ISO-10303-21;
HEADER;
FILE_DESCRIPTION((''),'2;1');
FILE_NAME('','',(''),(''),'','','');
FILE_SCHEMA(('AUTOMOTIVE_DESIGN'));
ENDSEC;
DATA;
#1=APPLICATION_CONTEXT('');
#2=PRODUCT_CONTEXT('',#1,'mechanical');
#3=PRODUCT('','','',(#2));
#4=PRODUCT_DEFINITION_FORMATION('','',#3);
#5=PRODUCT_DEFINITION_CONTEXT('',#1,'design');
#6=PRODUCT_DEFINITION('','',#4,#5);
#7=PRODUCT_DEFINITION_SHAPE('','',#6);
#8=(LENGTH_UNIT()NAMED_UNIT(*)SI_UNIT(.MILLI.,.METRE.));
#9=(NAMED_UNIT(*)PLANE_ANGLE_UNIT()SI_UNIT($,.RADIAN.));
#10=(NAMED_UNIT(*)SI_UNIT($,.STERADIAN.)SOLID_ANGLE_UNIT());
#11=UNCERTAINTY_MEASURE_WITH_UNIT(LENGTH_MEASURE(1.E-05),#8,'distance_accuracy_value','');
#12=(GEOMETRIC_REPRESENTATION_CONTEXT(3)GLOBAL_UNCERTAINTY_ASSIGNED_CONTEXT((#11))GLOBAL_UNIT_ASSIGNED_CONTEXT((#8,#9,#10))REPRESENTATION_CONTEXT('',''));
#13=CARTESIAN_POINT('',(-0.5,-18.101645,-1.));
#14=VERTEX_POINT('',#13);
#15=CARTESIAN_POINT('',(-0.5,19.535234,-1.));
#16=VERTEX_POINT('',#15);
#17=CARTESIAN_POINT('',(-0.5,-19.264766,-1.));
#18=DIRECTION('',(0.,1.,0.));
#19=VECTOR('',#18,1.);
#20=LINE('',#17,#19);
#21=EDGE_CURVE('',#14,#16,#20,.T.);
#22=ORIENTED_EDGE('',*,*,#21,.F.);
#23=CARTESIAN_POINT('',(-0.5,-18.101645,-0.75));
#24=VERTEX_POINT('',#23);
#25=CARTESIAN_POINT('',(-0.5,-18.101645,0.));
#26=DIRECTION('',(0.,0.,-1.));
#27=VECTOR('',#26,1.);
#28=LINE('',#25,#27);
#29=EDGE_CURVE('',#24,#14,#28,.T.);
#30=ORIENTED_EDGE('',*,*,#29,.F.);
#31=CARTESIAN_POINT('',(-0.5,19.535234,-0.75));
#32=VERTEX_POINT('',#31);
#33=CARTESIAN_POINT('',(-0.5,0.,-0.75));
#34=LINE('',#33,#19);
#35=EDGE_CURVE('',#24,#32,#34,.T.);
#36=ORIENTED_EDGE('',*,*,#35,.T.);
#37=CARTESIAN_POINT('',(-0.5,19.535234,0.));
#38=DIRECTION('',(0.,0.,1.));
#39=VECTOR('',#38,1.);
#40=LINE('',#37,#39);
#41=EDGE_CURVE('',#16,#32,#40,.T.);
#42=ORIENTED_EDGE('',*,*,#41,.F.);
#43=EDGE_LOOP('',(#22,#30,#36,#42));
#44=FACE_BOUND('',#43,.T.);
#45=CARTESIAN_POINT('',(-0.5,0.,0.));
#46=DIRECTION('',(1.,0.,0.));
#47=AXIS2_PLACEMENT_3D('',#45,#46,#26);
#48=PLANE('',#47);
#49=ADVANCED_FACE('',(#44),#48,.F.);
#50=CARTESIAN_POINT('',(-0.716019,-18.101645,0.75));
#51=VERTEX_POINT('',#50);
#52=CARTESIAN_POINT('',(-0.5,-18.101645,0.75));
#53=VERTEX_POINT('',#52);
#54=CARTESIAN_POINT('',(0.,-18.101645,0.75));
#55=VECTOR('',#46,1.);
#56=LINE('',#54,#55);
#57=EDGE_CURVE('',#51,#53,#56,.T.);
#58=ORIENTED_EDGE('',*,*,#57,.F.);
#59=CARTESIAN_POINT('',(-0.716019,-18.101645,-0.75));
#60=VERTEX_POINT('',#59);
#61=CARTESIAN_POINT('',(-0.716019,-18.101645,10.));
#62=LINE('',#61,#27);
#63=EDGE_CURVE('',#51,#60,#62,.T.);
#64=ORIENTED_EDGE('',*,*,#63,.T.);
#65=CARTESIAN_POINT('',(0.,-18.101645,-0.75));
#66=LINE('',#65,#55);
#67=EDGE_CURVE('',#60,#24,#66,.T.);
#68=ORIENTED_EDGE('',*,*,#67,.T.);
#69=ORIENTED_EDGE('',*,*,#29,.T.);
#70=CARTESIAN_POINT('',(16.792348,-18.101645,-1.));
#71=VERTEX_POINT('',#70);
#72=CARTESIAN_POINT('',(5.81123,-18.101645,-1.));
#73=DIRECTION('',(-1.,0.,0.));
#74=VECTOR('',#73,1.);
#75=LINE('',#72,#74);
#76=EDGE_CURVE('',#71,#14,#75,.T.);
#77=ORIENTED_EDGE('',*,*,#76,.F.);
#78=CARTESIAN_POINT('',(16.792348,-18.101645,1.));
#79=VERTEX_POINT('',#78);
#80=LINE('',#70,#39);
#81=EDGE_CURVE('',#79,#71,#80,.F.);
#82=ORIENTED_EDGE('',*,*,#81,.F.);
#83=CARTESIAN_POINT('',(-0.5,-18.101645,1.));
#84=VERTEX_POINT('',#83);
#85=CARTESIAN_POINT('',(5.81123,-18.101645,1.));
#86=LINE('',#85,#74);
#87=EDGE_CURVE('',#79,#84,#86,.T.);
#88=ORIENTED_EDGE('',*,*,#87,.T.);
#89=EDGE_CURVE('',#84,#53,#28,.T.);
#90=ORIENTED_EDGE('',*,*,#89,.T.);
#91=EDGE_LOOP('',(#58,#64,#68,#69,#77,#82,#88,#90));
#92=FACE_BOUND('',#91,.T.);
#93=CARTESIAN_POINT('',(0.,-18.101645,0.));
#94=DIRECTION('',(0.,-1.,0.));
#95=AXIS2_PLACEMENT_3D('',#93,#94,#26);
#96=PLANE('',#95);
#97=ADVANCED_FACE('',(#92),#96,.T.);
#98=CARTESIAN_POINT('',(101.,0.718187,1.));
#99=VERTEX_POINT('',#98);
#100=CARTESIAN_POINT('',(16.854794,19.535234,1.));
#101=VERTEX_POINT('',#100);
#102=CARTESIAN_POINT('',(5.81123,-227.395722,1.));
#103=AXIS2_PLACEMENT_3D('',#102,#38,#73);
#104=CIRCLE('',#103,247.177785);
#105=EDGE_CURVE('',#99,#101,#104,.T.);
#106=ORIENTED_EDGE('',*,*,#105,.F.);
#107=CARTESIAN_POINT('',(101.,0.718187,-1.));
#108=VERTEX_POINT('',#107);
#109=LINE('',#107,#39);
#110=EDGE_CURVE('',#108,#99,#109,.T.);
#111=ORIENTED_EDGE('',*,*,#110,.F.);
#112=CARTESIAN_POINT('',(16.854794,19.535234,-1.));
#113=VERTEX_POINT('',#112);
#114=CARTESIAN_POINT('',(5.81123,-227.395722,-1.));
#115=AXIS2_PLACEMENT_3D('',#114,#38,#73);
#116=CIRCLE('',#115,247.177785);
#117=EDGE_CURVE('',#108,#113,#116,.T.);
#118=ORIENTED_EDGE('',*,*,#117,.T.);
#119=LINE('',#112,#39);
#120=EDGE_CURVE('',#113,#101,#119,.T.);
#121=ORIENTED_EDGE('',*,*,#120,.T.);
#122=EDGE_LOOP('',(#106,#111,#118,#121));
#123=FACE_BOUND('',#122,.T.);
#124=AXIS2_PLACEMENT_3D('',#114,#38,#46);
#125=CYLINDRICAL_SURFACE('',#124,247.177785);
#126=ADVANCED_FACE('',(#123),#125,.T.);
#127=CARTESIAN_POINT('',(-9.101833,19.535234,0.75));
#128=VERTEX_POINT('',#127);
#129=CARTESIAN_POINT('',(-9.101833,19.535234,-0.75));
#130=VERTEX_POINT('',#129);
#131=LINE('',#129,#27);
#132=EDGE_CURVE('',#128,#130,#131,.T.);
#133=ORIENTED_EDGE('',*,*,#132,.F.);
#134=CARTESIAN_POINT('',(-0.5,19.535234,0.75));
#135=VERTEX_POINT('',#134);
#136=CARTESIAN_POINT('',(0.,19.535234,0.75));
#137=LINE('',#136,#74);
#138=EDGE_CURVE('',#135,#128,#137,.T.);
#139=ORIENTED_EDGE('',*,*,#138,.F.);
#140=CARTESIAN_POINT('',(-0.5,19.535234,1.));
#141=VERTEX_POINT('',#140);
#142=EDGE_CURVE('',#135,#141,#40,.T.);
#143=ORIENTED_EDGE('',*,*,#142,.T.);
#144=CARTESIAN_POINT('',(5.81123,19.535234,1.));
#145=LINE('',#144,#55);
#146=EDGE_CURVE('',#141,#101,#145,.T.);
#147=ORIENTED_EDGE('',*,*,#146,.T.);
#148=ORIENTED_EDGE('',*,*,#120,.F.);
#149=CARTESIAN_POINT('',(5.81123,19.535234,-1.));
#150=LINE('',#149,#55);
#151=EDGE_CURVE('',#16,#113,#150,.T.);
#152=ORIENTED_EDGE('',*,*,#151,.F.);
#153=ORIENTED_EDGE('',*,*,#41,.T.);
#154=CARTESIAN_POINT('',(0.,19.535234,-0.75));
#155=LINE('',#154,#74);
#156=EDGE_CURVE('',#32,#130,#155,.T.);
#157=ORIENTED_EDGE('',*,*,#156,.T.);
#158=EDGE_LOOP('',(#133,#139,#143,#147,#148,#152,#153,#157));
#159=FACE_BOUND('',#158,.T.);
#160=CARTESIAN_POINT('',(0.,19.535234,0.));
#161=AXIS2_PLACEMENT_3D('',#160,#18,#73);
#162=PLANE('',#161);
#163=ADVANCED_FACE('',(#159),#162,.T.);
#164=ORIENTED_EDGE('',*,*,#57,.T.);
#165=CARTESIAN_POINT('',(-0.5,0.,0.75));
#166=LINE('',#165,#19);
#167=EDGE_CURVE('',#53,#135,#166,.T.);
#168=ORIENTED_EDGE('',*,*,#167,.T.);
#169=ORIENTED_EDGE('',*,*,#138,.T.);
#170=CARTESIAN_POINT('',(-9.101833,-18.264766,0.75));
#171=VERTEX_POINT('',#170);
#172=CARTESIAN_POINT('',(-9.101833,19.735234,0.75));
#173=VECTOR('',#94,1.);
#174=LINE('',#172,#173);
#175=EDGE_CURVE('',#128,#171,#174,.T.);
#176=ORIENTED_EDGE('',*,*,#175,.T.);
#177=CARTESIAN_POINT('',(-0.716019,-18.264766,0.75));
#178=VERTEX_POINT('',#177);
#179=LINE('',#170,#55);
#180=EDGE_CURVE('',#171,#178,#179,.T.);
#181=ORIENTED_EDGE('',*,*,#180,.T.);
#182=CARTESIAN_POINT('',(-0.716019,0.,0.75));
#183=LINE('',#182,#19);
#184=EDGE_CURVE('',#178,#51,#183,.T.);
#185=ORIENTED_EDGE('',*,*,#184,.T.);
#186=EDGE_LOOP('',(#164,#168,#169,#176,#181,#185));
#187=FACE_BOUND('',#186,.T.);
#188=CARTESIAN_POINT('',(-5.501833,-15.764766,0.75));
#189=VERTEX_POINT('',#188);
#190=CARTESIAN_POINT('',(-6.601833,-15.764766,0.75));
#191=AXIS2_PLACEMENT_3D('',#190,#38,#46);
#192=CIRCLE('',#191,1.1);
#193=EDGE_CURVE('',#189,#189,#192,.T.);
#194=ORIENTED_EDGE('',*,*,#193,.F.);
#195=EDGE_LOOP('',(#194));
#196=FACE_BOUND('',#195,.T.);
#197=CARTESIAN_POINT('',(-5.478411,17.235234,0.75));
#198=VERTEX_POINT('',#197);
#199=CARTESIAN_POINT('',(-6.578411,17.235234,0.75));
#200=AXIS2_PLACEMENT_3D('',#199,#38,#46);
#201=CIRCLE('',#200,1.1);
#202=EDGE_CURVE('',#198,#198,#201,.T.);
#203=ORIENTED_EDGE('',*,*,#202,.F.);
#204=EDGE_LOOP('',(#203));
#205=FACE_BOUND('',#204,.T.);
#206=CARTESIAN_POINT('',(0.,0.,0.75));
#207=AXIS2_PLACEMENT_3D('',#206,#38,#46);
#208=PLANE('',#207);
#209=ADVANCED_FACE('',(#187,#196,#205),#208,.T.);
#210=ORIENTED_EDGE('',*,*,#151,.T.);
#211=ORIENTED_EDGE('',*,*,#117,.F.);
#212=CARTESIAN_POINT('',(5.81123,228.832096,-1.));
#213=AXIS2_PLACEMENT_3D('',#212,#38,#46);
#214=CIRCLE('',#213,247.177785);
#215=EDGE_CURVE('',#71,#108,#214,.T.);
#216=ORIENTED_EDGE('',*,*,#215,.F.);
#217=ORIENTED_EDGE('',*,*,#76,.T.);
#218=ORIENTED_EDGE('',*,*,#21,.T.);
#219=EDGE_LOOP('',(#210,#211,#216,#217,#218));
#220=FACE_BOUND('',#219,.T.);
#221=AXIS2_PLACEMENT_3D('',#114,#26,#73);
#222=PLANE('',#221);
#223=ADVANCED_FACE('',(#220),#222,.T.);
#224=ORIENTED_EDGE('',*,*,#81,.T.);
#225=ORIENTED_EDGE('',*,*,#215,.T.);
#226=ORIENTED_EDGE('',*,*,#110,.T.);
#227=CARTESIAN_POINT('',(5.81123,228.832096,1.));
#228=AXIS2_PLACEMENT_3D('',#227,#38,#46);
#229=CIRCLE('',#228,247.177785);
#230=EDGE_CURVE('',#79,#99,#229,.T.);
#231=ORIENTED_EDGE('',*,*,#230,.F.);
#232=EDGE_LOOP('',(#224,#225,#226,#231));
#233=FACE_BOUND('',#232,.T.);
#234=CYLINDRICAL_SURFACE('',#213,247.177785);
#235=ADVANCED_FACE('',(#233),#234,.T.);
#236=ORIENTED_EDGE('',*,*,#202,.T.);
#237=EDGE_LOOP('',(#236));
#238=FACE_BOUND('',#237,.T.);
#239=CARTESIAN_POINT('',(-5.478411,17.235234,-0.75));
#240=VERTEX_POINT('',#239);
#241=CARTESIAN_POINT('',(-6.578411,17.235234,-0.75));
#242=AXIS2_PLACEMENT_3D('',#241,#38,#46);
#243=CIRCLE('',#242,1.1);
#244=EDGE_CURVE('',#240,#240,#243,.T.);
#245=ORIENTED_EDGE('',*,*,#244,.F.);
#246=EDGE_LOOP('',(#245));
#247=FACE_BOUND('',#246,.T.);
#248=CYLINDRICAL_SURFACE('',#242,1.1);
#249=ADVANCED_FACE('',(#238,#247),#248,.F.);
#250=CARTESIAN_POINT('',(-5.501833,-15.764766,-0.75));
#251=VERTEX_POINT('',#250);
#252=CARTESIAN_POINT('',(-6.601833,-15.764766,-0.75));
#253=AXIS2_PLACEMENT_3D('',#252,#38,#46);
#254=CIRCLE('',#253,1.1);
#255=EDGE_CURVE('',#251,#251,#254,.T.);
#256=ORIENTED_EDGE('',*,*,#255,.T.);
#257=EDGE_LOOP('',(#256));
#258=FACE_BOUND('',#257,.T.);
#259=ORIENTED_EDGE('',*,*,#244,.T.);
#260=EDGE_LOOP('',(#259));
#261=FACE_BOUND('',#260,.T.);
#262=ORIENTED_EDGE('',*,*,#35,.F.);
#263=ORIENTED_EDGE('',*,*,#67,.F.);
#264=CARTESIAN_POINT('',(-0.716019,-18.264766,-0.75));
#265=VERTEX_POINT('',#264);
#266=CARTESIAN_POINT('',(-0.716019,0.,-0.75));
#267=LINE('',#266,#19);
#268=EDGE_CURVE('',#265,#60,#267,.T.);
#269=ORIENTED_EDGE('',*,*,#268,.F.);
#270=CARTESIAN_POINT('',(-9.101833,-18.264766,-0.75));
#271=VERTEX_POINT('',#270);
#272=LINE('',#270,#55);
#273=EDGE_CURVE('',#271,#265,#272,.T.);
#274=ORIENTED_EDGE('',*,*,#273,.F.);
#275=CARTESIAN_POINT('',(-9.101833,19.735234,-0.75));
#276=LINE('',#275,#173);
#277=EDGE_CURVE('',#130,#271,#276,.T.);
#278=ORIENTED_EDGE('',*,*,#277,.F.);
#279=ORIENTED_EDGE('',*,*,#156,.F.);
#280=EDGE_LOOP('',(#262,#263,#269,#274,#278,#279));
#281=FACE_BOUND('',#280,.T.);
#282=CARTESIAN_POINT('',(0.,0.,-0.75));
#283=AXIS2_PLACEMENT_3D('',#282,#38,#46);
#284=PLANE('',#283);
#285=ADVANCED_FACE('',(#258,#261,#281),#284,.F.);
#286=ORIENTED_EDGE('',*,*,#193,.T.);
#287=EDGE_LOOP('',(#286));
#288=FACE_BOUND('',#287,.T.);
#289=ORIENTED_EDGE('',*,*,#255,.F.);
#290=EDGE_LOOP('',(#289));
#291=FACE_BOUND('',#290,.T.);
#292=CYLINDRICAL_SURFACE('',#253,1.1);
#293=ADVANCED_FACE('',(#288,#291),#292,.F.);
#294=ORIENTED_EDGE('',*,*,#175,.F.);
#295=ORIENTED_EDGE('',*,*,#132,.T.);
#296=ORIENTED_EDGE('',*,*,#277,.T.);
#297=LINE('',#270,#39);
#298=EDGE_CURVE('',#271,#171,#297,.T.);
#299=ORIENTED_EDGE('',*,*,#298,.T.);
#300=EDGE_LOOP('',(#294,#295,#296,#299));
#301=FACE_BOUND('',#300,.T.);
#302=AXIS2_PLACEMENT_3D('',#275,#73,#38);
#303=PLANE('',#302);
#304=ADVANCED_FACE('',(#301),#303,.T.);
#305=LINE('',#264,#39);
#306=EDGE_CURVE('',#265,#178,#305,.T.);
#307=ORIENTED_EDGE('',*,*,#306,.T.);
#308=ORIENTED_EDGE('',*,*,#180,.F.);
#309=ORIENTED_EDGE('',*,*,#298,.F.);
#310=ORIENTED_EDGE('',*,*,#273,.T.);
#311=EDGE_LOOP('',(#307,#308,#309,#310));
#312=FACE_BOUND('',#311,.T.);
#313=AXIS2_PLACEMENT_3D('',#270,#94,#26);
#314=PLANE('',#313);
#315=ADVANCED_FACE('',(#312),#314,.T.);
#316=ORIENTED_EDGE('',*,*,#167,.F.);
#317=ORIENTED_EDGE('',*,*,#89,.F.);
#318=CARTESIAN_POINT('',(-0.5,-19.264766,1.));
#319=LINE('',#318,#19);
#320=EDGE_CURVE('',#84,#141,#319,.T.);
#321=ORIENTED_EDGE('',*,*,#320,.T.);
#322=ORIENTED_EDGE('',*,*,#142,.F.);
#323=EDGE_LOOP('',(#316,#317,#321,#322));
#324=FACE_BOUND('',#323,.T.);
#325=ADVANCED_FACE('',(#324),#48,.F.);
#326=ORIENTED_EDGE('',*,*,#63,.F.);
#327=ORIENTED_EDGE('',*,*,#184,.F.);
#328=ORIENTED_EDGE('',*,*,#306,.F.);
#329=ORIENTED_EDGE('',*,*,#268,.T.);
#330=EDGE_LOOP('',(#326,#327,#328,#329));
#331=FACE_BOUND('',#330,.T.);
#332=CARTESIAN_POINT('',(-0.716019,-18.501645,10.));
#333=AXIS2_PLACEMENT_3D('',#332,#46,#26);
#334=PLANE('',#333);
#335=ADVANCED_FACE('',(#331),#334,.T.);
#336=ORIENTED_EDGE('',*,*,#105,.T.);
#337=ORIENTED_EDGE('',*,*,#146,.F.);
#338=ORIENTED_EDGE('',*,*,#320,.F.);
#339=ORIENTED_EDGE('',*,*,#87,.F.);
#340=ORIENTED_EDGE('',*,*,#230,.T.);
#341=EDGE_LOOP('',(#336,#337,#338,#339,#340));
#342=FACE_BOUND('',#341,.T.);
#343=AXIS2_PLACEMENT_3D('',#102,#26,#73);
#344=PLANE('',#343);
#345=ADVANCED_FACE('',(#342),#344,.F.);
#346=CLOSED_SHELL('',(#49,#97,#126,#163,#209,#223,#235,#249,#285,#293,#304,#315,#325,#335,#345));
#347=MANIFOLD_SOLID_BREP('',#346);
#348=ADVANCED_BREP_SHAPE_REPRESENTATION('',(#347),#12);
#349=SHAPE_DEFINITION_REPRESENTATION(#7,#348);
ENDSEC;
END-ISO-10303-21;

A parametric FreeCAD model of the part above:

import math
import FreeCAD as App
import Part
import Sketcher

V = App.Vector
Q = App.Units.Quantity


def add_polygon(sketch, points):
    """Adds a closed chain of lines whose ends are joined by coincident constraints."""
    first, n = sketch.GeometryCount, len(points)
    for a, b in zip(points, points[1:] + points[:1]):
        sketch.addGeometry(Part.LineSegment(App.Vector(*a, 0), App.Vector(*b, 0)), False)
    for i in range(n):
        sketch.addConstraint(Sketcher.Constraint("Coincident", first + i, 2, first + (i + 1) % n, 1))

doc = App.newDocument("Part")
body = doc.addObject("PartDesign::Body", "Body")

sketch1 = body.newObject("Sketcher::SketchObject", "Sketch")
sketch1.AttachmentSupport = (doc.getObject("XY_Plane"), [""])
sketch1.MapMode = "FlatFace"
add_polygon(sketch1, [(-9.1, 19.7), (-9.1, -18.3), (0.9, -18.3), (0.9, 19.7)])
sketch1.addGeometry(Part.Circle(V(-6.6, -15.8, 0), V(0, 0, 1), 1.1), False)
sketch1.addGeometry(Part.Circle(V(-6.6, 17.2, 0), V(0, 0, 1), 1.1), False)
sketch1.addConstraint([
    Sketcher.Constraint("Vertical", 0),
    Sketcher.Constraint("Horizontal", 1),
    Sketcher.Constraint("Vertical", 2),
    Sketcher.Constraint("Horizontal", 3),
    Sketcher.Constraint("Equal", 4, 5),
    Sketcher.Constraint("Diameter", 4, Q("2.2 mm")),
    Sketcher.Constraint("DistanceX", 1, 1, 1, 2, Q("10 mm")),
    Sketcher.Constraint("DistanceY", 0, 2, 0, 1, Q("38 mm")),
    Sketcher.Constraint("DistanceY", 4, 3, 5, 3, Q("33 mm")),
    Sketcher.Constraint("DistanceX", 0, 2, 4, 3, Q("2.5 mm")),
    Sketcher.Constraint("DistanceY", 0, 2, 4, 3, Q("2.5 mm")),
    Sketcher.Constraint("DistanceX", 5, 3, -1, 1, Q("6.578411 mm")),
    Sketcher.Constraint("DistanceX", 4, 3, 5, 3, Q("0.023422 mm")),
    Sketcher.Constraint("DistanceY", 4, 3, -1, 1, Q("15.764766 mm")),
])
pad1 = body.newObject("PartDesign::Pad", "Pad")
pad1.Profile = sketch1
pad1.Type = "TwoLengths"
pad1.Length = 0.75
pad1.Length2 = 0.75

sketch2 = body.newObject("Sketcher::SketchObject", "Sketch001")
sketch2.AttachmentSupport = (doc.getObject("YZ_Plane"), [""])
sketch2.MapMode = "FlatFace"
sketch2.AttachmentOffset = App.Placement(V(0, 0, -0.5), App.Rotation())
add_polygon(sketch2, [(20, 10), (-18, 10), (-18, -10), (20, -10)])
sketch2.addConstraint([
    Sketcher.Constraint("Horizontal", 0),
    Sketcher.Constraint("Vertical", 1),
    Sketcher.Constraint("Horizontal", 2),
    Sketcher.Constraint("Vertical", 3),
    Sketcher.Constraint("DistanceY", 1, 2, 1, 1, Q("20 mm")),
    Sketcher.Constraint("DistanceY", -1, 1, 0, 2, Q("10 mm")),
    Sketcher.Constraint("DistanceX", 0, 2, 0, 1, Q("38.036879 mm")),
    Sketcher.Constraint("DistanceX", 0, 2, -1, 1, Q("18.301645 mm")),
])
pad2 = body.newObject("PartDesign::Pad", "Pad001")
pad2.Profile = sketch2
pad2.Length = 1.5

sketch3 = body.newObject("Sketcher::SketchObject", "Sketch002")
sketch3.AttachmentSupport = (doc.getObject("XY_Plane"), [""])
sketch3.MapMode = "FlatFace"
sketch3.addGeometry([
    Part.LineSegment(V(1, 20, 0), V(1, -18, 0)),
    Part.ArcOfCircle(Part.Circle(V(6, 229, 0), V(0, 0, 1), 247), math.radians(-91), math.radians(-67)),
    Part.ArcOfCircle(Part.Circle(V(6, -227, 0), V(0, 0, 1), 247), math.radians(67), math.radians(91)),
], False)
sketch3.addConstraint([
    Sketcher.Constraint("Coincident", 0, 2, 1, 1),
    Sketcher.Constraint("Coincident", 1, 2, 2, 1),
    Sketcher.Constraint("Coincident", 2, 2, 0, 1),
    Sketcher.Constraint("Vertical", 0),
    Sketcher.Constraint("Equal", 1, 2),
    Sketcher.Constraint("Vertical", 1, 3, 2, 3),
    Sketcher.Constraint("DistanceX", -1, 1, 0, 2, Q("1 mm")),
    Sketcher.Constraint("DistanceX", -1, 1, 1, 2, Q("101 mm")),
    Sketcher.Constraint("Radius", 1, Q("247.177785 mm")),
    Sketcher.Constraint("DistanceY", 0, 2, 0, 1, Q("38.034094 mm")),
    Sketcher.Constraint("DistanceY", 0, 2, -1, 1, Q("18.29886 mm")),
])
pad3 = body.newObject("PartDesign::Pad", "Pad002")
pad3.Profile = sketch3
pad3.Type = "TwoLengths"
pad3.Length = 1
pad3.Length2 = 1

sketch4 = body.newObject("Sketcher::SketchObject", "Sketch003")
sketch4.AttachmentSupport = (doc.getObject("XZ_Plane"), [""])
sketch4.MapMode = "FlatFace"
sketch4.AttachmentOffset = App.Placement(V(0, 0, -19.735234), App.Rotation())
add_polygon(sketch4, [(-10, -11), (-10, 10), (103, 10), (103, -11)])
sketch4.addConstraint([
    Sketcher.Constraint("Vertical", 0),
    Sketcher.Constraint("Horizontal", 1),
    Sketcher.Constraint("Vertical", 2),
    Sketcher.Constraint("Horizontal", 3),
    Sketcher.Constraint("DistanceY", -1, 1, 0, 2, Q("10 mm")),
    Sketcher.Constraint("DistanceX", 1, 1, 1, 2, Q("112.497059 mm")),
    Sketcher.Constraint("DistanceX", -1, 1, 1, 2, Q("102.742901 mm")),
    Sketcher.Constraint("DistanceY", 0, 1, 0, 2, Q("20.543415 mm")),
])
pocket1 = body.newObject("PartDesign::Pocket", "Pocket")
pocket1.Profile = sketch4
pocket1.Type = "TwoLengths"
pocket1.Length = 0.2
pocket1.Length2 = 0.2

sketch5 = body.newObject("Sketcher::SketchObject", "Sketch004")
sketch5.AttachmentSupport = (doc.getObject("XZ_Plane"), [""])
sketch5.MapMode = "FlatFace"
sketch5.AttachmentOffset = App.Placement(V(0, 0, 18.301645), App.Rotation())
add_polygon(sketch5, [(104, -12), (104, 10), (-1, 10), (-1, -12)])
sketch5.addConstraint([
    Sketcher.Constraint("Vertical", 0),
    Sketcher.Constraint("Horizontal", 1),
    Sketcher.Constraint("Vertical", 2),
    Sketcher.Constraint("Horizontal", 3),
    Sketcher.Constraint("DistanceY", -1, 1, 0, 2, Q("10 mm")),
    Sketcher.Constraint("DistanceX", 1, 2, 1, 1, Q("104.514605 mm")),
    Sketcher.Constraint("DistanceY", 0, 1, 0, 2, Q("21.657748 mm")),
    Sketcher.Constraint("DistanceX", 1, 2, -1, 1, Q("0.716019 mm")),
])
pocket2 = body.newObject("PartDesign::Pocket", "Pocket001")
pocket2.Profile = sketch5
pocket2.Type = "TwoLengths"
pocket2.Length = 0.2
pocket2.Length2 = 0.2
pocket2.Reversed = True

sketch6 = body.newObject("Sketcher::SketchObject", "Sketch005")
sketch6.AttachmentSupport = (doc.getObject("XZ_Plane"), [""])
sketch6.MapMode = "FlatFace"
sketch6.AttachmentOffset = App.Placement(V(0, 0, -19.735234), App.Rotation())
add_polygon(sketch6, [(-0.5, 1), (-0.5, 10), (1, 10), (1, 1)])
add_polygon(sketch6, [(-0.5, -10), (-0.5, -1), (1, -1), (1, -10)])
sketch6.addConstraint([
    Sketcher.Constraint("Vertical", 0),
    Sketcher.Constraint("Horizontal", 1),
    Sketcher.Constraint("Vertical", 2),
    Sketcher.Constraint("Horizontal", 3),
    Sketcher.Constraint("Vertical", 4),
    Sketcher.Constraint("Horizontal", 5),
    Sketcher.Constraint("Vertical", 6),
    Sketcher.Constraint("Horizontal", 7),
    Sketcher.Constraint("Symmetric", 3, 2, 4, 2, -1),
    Sketcher.Constraint("Symmetric", 1, 2, 6, 2, -1),
    Sketcher.Constraint("DistanceY", 0, 1, 0, 2, Q("9 mm")),
    Sketcher.Constraint("DistanceX", 1, 1, 1, 2, Q("1.5 mm")),
    Sketcher.Constraint("DistanceY", -1, 1, 0, 2, Q("10 mm")),
    Sketcher.Constraint("DistanceX", -1, 1, 1, 2, Q("1 mm")),
])
pocket3 = body.newObject("PartDesign::Pocket", "Pocket002")
pocket3.Profile = sketch6
pocket3.Length = 39
pocket3.Reversed = True

doc.recompute()
